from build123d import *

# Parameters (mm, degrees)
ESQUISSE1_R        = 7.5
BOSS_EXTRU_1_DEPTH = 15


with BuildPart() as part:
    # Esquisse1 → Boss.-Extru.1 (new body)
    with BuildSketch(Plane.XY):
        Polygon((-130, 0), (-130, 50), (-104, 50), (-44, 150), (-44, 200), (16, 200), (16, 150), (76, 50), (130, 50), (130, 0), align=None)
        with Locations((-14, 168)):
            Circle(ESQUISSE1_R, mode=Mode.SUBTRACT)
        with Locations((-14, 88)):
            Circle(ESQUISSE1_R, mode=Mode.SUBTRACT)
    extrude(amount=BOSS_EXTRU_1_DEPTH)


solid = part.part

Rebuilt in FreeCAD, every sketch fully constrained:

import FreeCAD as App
import Part
import Sketcher
Q = App.Units.Quantity

doc = App.newDocument("Part")
params = doc.addObject("Spreadsheet::Sheet", "Params")
for row, (alias, value) in enumerate([
    ("sketch1_diameter", "15 mm"),
    ("sketch1_width", "260 mm"),
    ("sketch1_width2", "54 mm"),
    ("sketch1_width3", "60 mm"),
    ("sketch1_width4", "26 mm"),
    ("pad1_length", "15 mm"),
], start=1):
    params.set(f"A{row}", alias)
    params.set(f"B{row}", "=" + value)
    params.setAlias(f"B{row}", alias)

body = doc.addObject("PartDesign::Body", "Body")

# Sketch on XY plane
sketch1 = doc.addObject("Sketcher::SketchObject", "Sketch")
body.addObject(sketch1)
sketch1.AttachmentSupport = (doc.XY_Plane, [""])
sketch1.MapMode = "FlatFace"
sketch1.addGeometry([
    Part.LineSegment(App.Vector(-130, 50, 0), App.Vector(-130, 0, 0)),  # 0
    Part.LineSegment(App.Vector(-130, 0, 0), App.Vector(130, 0, 0)),  # 1
    Part.LineSegment(App.Vector(130, 0, 0), App.Vector(130, 50, 0)),  # 2
    Part.LineSegment(App.Vector(130, 50, 0), App.Vector(76, 50, 0)),  # 3
    Part.LineSegment(App.Vector(76, 50, 0), App.Vector(16, 150, 0)),  # 4
    Part.LineSegment(App.Vector(16, 150, 0), App.Vector(16, 200, 0)),  # 5
    Part.LineSegment(App.Vector(16, 200, 0), App.Vector(-44, 200, 0)),  # 6
    Part.LineSegment(App.Vector(-44, 200, 0), App.Vector(-44, 150, 0)),  # 7
    Part.LineSegment(App.Vector(-44, 150, 0), App.Vector(-104, 50, 0)),  # 8
    Part.LineSegment(App.Vector(-104, 50, 0), App.Vector(-130, 50, 0)),  # 9
    Part.Circle(App.Vector(-14, 88, 0), App.Vector(0, 0, 1), 7.5),  # 10
    Part.Circle(App.Vector(-14, 168, 0), App.Vector(0, 0, 1), 7.5),  # 11
], False)
sketch1.addConstraint([
    Sketcher.Constraint("Coincident", 0, 2, 1, 1),
    Sketcher.Constraint("Coincident", 1, 2, 2, 1),
    Sketcher.Constraint("Coincident", 2, 2, 3, 1),
    Sketcher.Constraint("Coincident", 3, 2, 4, 1),
    Sketcher.Constraint("Coincident", 4, 2, 5, 1),
    Sketcher.Constraint("Coincident", 5, 2, 6, 1),
    Sketcher.Constraint("Coincident", 6, 2, 7, 1),
    Sketcher.Constraint("Coincident", 7, 2, 8, 1),
    Sketcher.Constraint("Coincident", 8, 2, 9, 1),
    Sketcher.Constraint("Coincident", 9, 2, 0, 1),
    Sketcher.Constraint("Vertical", 0),
    Sketcher.Constraint("Horizontal", 1),
    Sketcher.Constraint("Vertical", 2),
    Sketcher.Constraint("Horizontal", 3),
    Sketcher.Constraint("Vertical", 5),
    Sketcher.Constraint("Horizontal", 6),
    Sketcher.Constraint("Vertical", 7),
    Sketcher.Constraint("Horizontal", 9),
    Sketcher.Constraint("Equal", 10, 11),
    Sketcher.Constraint("Symmetric", 0, 2, 1, 2, -1, 1),
    Sketcher.Constraint("Horizontal", 4, 2, 7, 2),
    Sketcher.Constraint("Horizontal", 3, 2, 8, 2),
    Sketcher.Constraint("Vertical", 10, 3, 11, 3),
    Sketcher.Constraint("Equal", 2, 5),
    Sketcher.Constraint("Equal", 4, 8),
    Sketcher.Constraint("Diameter", 10, Q("15 mm")),
    Sketcher.Constraint("DistanceX", 1, 1, 1, 2, Q("260 mm")),
    Sketcher.Constraint("DistanceX", 3, 2, 3, 1, Q("54 mm")),
    Sketcher.Constraint("DistanceX", 6, 2, 6, 1, Q("60 mm")),
    Sketcher.Constraint("DistanceX", 9, 2, 9, 1, Q("26 mm")),
    Sketcher.Constraint("DistanceY", 0, 2, 0, 1, Q("50 mm")),
    Sketcher.Constraint("DistanceX", 10, 3, -1, 1, Q("14 mm")),
    Sketcher.Constraint("DistanceY", -1, 1, 10, 3, Q("88 mm")),
    Sketcher.Constraint("DistanceY", -1, 1, 11, 3, Q("168 mm")),
    Sketcher.Constraint("DistanceY", -1, 1, 4, 2, Q("150 mm")),
])
sketch1.setExpression("Constraints[25]", "Params.sketch1_diameter")
sketch1.setExpression("Constraints[26]", "Params.sketch1_width")
sketch1.setExpression("Constraints[27]", "Params.sketch1_width2")
sketch1.setExpression("Constraints[28]", "Params.sketch1_width3")
sketch1.setExpression("Constraints[29]", "Params.sketch1_width4")
pad1 = doc.addObject("PartDesign::Pad", "Pad")
body.addObject(pad1)
pad1.Profile = sketch1
pad1.setExpression("Length", "Params.pad1_length")

doc.recompute()
